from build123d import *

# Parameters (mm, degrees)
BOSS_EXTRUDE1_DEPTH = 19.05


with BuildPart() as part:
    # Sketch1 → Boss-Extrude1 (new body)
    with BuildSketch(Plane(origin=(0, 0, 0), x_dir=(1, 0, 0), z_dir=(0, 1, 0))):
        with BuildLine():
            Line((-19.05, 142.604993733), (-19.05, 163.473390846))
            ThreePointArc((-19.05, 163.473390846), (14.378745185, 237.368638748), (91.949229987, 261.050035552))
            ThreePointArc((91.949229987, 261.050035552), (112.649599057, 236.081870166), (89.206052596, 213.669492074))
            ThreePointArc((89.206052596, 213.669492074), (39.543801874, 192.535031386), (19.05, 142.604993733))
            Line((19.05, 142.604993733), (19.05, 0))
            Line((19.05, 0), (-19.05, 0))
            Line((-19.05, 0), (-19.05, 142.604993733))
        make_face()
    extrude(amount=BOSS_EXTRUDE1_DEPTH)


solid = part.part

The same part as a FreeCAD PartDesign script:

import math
import FreeCAD as App
import Part
import Sketcher
Q = App.Units.Quantity

doc = App.newDocument("Part")
body = doc.addObject("PartDesign::Body", "Body")

# Sketch on XZ plane
sketch1 = doc.addObject("Sketcher::SketchObject", "Sketch")
body.addObject(sketch1)
sketch1.AttachmentSupport = (doc.XZ_Plane, [""])
sketch1.MapMode = "FlatFace"
sketch1.addGeometry([
    Part.ArcOfCircle(Part.Circle(App.Vector(79.338208, -163.473391, 0), App.Vector(0, 0, 1), 98.388208), math.radians(180), math.radians(277.364212)),  # 0
    Part.LineSegment(App.Vector(-19.05, -163.473391, 0), App.Vector(-19.05, 0, 0)),  # 1
    Part.LineSegment(App.Vector(-19.05, 0, 0), App.Vector(19.05, 0, 0)),  # 2
    Part.LineSegment(App.Vector(19.05, 0, 0), App.Vector(19.05, -142.604994, 0)),  # 3
    Part.ArcOfCircle(Part.Circle(App.Vector(90.12038, -142.604994, 0), App.Vector(0, 0, 1), 71.07038), math.radians(-180), math.radians(-90.737136)),  # 4
    Part.ArcOfCircle(Part.Circle(App.Vector(88.9, -237.456894, 0), App.Vector(0, 0, 1), 23.78937), math.radians(-82.635788), math.radians(89.262864)),  # 5
], False)
sketch1.addConstraint([
    Sketcher.Constraint("Tangent", 0, 1, 1, 1),
    Sketcher.Constraint("Coincident", 1, 2, 2, 1),
    Sketcher.Constraint("Coincident", 2, 2, 3, 1),
    Sketcher.Constraint("Tangent", 3, 2, 4, 1),
    Sketcher.Constraint("Tangent", 4, 2, 5, 2),
    Sketcher.Constraint("Tangent", 5, 1, 0, 2),
    Sketcher.Constraint("Vertical", 1),
    Sketcher.Constraint("Horizontal", 2),
    Sketcher.Constraint("Vertical", 3),
    Sketcher.Constraint("Symmetric", 1, 2, 2, 2, -1, 1),
    Sketcher.Constraint("DistanceX", 2, 1, 2, 2, Q("1.5 in")),
    Sketcher.Constraint("DistanceX", -1, 1, 5, 3, Q("3.5 in")),
    Sketcher.Constraint("Radius", 4, 71.07038),
    Sketcher.Constraint("Radius", 5, 23.78937),
    Sketcher.Constraint("Radius", 0, 98.388208),
    Sketcher.Constraint("DistanceY", 1, 1, 1, 2, 163.473391),
])
pad1 = doc.addObject("PartDesign::Pad", "Pad")
body.addObject(pad1)
pad1.Profile = sketch1
pad1.Length = Q("0.75 in")
pad1.Reversed = True

doc.recompute()
